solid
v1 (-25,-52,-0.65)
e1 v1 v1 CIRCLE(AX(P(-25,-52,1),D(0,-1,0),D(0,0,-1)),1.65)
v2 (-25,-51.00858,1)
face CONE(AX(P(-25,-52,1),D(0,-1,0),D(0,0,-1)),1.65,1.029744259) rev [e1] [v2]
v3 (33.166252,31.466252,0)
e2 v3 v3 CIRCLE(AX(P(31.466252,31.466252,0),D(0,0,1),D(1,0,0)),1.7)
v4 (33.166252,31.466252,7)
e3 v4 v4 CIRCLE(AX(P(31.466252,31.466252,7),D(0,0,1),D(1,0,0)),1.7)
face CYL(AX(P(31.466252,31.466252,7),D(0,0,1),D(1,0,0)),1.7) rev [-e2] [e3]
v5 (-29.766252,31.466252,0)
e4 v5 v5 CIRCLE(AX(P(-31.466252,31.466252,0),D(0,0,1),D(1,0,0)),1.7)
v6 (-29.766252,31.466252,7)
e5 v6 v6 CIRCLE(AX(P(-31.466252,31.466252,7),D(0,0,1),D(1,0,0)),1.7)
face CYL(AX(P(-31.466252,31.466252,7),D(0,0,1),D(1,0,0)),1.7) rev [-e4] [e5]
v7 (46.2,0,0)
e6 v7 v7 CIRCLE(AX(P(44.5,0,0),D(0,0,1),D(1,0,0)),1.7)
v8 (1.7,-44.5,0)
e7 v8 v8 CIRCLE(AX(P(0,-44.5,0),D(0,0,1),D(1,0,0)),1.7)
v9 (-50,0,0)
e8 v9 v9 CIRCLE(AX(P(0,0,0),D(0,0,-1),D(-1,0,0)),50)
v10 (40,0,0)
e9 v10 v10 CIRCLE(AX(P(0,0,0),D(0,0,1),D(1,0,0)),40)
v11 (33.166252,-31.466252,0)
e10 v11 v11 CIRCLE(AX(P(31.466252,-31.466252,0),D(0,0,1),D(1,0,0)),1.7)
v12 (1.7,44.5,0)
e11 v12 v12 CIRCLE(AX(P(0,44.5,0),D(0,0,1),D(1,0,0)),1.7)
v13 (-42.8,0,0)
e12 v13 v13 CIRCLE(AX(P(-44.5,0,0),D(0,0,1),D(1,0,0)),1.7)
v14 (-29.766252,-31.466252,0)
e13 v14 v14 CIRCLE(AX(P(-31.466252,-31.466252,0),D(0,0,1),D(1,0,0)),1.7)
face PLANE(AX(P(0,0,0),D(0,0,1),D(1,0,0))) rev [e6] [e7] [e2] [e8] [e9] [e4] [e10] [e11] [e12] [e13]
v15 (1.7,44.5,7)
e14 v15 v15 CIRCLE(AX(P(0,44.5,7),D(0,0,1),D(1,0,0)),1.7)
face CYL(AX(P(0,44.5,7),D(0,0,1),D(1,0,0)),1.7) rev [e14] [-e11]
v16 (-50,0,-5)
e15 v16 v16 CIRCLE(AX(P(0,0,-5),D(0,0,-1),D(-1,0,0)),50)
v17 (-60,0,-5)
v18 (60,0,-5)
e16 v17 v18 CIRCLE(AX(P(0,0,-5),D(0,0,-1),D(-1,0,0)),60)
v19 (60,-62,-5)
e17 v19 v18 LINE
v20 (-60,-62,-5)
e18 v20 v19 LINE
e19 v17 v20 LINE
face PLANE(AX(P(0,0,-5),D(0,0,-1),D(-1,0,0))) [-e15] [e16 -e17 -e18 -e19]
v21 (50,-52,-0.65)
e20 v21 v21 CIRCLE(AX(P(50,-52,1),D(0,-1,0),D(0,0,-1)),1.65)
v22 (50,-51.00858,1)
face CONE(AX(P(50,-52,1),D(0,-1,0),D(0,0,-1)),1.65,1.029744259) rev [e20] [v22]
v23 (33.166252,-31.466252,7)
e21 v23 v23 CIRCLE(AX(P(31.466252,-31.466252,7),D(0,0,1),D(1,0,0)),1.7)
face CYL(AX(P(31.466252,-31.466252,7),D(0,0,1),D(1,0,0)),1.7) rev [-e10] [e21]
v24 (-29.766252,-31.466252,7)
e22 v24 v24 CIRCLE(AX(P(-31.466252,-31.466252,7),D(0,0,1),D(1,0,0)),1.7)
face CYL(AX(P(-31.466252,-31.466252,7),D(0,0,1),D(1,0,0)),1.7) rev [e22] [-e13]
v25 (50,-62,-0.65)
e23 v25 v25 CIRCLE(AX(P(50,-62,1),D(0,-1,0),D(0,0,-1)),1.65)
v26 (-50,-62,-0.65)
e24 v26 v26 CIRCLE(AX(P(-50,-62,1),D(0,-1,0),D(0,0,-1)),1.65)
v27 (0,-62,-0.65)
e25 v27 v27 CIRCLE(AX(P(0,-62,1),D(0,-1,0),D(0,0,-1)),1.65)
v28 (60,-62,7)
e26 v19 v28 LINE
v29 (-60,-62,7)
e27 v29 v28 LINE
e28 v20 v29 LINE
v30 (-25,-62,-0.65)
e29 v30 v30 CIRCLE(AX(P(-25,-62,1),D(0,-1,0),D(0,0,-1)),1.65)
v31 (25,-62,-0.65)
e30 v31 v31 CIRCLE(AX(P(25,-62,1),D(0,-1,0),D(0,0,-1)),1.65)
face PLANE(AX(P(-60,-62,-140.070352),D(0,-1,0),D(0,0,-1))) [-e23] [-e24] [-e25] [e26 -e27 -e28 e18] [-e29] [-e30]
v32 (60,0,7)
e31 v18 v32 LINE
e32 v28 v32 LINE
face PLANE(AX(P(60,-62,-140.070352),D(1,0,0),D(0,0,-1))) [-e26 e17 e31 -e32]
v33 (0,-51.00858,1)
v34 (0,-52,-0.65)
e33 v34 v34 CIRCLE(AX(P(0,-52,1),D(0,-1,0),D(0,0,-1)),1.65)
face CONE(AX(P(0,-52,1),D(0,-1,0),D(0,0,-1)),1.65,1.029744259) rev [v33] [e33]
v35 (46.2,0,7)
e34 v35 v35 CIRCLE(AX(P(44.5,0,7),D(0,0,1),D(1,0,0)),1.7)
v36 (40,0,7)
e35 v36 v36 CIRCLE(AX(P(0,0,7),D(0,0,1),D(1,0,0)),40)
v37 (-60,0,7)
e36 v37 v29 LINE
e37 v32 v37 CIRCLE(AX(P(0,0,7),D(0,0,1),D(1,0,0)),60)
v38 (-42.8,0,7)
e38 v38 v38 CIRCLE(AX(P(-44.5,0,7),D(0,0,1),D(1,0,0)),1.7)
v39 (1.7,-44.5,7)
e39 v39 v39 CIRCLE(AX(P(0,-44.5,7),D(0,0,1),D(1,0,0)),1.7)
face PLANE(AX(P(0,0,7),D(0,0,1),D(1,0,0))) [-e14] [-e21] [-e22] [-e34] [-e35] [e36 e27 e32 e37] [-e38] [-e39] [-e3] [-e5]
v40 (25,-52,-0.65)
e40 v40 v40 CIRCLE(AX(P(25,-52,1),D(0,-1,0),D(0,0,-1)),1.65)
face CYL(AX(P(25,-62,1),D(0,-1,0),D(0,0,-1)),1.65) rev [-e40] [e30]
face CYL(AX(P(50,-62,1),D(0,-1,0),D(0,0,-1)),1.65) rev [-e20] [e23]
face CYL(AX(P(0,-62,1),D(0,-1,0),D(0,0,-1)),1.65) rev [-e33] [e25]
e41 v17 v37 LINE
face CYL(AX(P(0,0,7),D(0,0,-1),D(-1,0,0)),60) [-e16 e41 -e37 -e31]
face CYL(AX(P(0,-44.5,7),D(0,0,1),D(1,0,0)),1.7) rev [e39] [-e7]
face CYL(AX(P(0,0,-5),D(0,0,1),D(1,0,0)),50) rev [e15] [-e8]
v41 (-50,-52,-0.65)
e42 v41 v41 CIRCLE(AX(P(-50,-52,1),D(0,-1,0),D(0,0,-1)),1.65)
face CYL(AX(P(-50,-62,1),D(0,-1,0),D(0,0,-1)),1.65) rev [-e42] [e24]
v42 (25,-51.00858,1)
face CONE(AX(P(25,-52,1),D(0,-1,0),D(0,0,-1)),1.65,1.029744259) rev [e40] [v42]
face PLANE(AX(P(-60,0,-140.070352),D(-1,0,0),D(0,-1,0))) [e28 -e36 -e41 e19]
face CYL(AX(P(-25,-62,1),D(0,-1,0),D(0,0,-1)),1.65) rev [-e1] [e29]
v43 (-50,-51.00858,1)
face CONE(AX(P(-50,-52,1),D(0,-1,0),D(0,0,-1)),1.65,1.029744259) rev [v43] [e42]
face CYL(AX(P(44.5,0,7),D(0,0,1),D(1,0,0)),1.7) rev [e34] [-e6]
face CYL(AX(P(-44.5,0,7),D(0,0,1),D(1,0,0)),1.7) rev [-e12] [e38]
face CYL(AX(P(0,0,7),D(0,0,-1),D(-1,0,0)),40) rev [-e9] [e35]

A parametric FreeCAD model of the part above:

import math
import FreeCAD as App
import Part
import Sketcher

V = App.Vector

doc = App.newDocument("Part")
params = doc.addObject("Spreadsheet::Sheet", "Params")
for row, (alias, value) in enumerate([
    ("sketch1_diameter", "120 mm"),
    ("sketch1_diameter2", "80 mm"),
    ("pad1_length", "7 mm"),
    ("sketch2_diameter", "3.4 mm"),
    ("hole_diameter", "3.4 mm"),
    ("sketch3_diameter", "120 mm"),
    ("sketch3_diameter2", "100 mm"),
    ("pad2_length", "5 mm"),
    ("sketch4_radius", "60 mm"),
    ("sketch4_height", "62 mm"),
    ("pad3_length", "12 mm"),
    ("sketch5_diameter", "3.3 mm"),
    ("hole2_diameter", "3.3 mm"),
    ("hole2_depth", "10 mm"),
], start=1):
    params.set(f"A{row}", alias)
    params.set(f"B{row}", "=" + value)
    params.setAlias(f"B{row}", alias)

body = doc.addObject("PartDesign::Body", "Body")

# Sketch on XY plane
sketch1 = body.newObject("Sketcher::SketchObject", "Sketch")
sketch1.AttachmentSupport = (doc.getObject("XY_Plane"), [""])
sketch1.MapMode = "FlatFace"
sketch1.addGeometry([
    Part.Circle(V(0, 0, 0), V(0, 0, 1), 60),
    Part.Circle(V(0, 0, 0), V(0, 0, 1), 40),
], False)
sketch1.addConstraint([
    Sketcher.Constraint("Coincident", 0, 3, -1, 1),
    Sketcher.Constraint("Coincident", 1, 3, -1, 1),
    Sketcher.Constraint("Diameter", 0, 120.0),
    Sketcher.Constraint("Diameter", 1, 80.0),
])
sketch1.setExpression("Constraints[2]", "Params.sketch1_diameter")
sketch1.setExpression("Constraints[3]", "Params.sketch1_diameter2")
pad1 = body.newObject("PartDesign::Pad", "Pad")
pad1.Profile = sketch1
pad1.setExpression("Length", "Params.pad1_length")

# Sketch on XY plane
sketch2 = body.newObject("Sketcher::SketchObject", "Sketch001")
sketch2.AttachmentSupport = (doc.getObject("XY_Plane"), [""])
sketch2.MapMode = "FlatFace"
sketch2.AttachmentOffset = App.Placement(V(0, 0, 7), App.Rotation())
sketch2.addGeometry([
    Part.Circle(V(-31.5, 31.5, 0), V(0, 0, 1), 1.7),  # 0
    Part.Circle(V(0, 44.5, 0), V(0, 0, 1), 1.7),  # 1
    Part.Circle(V(31.5, 31.5, 0), V(0, 0, 1), 1.7),  # 2
    Part.Circle(V(44.5, 0, 0), V(0, 0, 1), 1.7),  # 3
    Part.Circle(V(31.5, -31.5, 0), V(0, 0, 1), 1.7),  # 4
    Part.Circle(V(0, -44.5, 0), V(0, 0, 1), 1.7),  # 5
    Part.Circle(V(-31.5, -31.5, 0), V(0, 0, 1), 1.7),  # 6
    Part.Circle(V(-44.5, 0, 0), V(0, 0, 1), 1.7),  # 7
], False)
sketch2.addConstraint([
    Sketcher.Constraint("Equal", 0, 1),
    Sketcher.Constraint("Equal", 1, 2),
    Sketcher.Constraint("Equal", 2, 3),
    Sketcher.Constraint("Equal", 3, 4),
    Sketcher.Constraint("Equal", 4, 5),
    Sketcher.Constraint("Equal", 5, 6),
    Sketcher.Constraint("Equal", 6, 7),
    Sketcher.Constraint("Symmetric", 0, 3, 4, 3, -1, 1),
    Sketcher.Constraint("Symmetric", 1, 3, 5, 3, -1, 1),
    Sketcher.Constraint("Symmetric", 2, 3, 6, 3, -1, 1),
    Sketcher.Constraint("Symmetric", 3, 3, 7, 3, -1, 1),
    Sketcher.Constraint("Symmetric", 0, 3, 2, 3, -2),
    Sketcher.Constraint("PointOnObject", 1, 3, -2),
    Sketcher.Constraint("PointOnObject", 3, 3, -1),
    Sketcher.Constraint("Diameter", 0, 3.4),
    Sketcher.Constraint("DistanceY", 5, 3, 1, 3, 89.0),
    Sketcher.Constraint("DistanceX", -1, 1, 3, 3, 44.5),
    Sketcher.Constraint("DistanceX", 0, 3, -1, 1, 31.466252),
    Sketcher.Constraint("DistanceY", -1, 1, 0, 3, 31.466252),
])
sketch2.setExpression("Constraints[14]", "Params.sketch2_diameter")
doc.recompute()
hole = body.newObject("PartDesign::Hole", "Hole")
hole.Profile = sketch2
hole.ThreadType = "None"
hole.setExpression("Diameter", "Params.hole_diameter")
hole.DepthType = "ThroughAll"

# Sketch on XY plane
sketch3 = body.newObject("Sketcher::SketchObject", "Sketch002")
sketch3.AttachmentSupport = (doc.getObject("XY_Plane"), [""])
sketch3.MapMode = "FlatFace"
sketch3.AttachmentOffset = App.Placement(V(0, 0, -5), App.Rotation())
sketch3.addGeometry([
    Part.Circle(V(0, 0, 0), V(0, 0, 1), 60),
    Part.Circle(V(0, 0, 0), V(0, 0, 1), 50),
], False)
sketch3.addConstraint([
    Sketcher.Constraint("Coincident", 0, 3, -1, 1),
    Sketcher.Constraint("Coincident", 1, 3, -1, 1),
    Sketcher.Constraint("Diameter", 0, 120.0),
    Sketcher.Constraint("Diameter", 1, 100.0),
])
sketch3.setExpression("Constraints[2]", "Params.sketch3_diameter")
sketch3.setExpression("Constraints[3]", "Params.sketch3_diameter2")
pad2 = body.newObject("PartDesign::Pad", "Pad001")
pad2.Profile = sketch3
pad2.setExpression("Length", "Params.pad2_length")

# Sketch on XY plane
sketch4 = body.newObject("Sketcher::SketchObject", "Sketch003")
sketch4.AttachmentSupport = (doc.getObject("XY_Plane"), [""])
sketch4.MapMode = "FlatFace"
sketch4.AttachmentOffset = App.Placement(V(0, 0, -5), App.Rotation())
sketch4.addGeometry([
    Part.LineSegment(V(-60, 0, 0), V(-60, -62, 0)),
    Part.LineSegment(V(-60, -62, 0), V(60, -62, 0)),
    Part.LineSegment(V(60, -62, 0), V(60, 0, 0)),
    Part.ArcOfCircle(Part.Circle(V(0, 0, 0), V(0, 0, 1), 60), math.radians(180), math.radians(360)),
], False)
sketch4.addConstraint([
    Sketcher.Constraint("Coincident", 0, 2, 1, 1),
    Sketcher.Constraint("Coincident", 1, 2, 2, 1),
    Sketcher.Constraint("Tangent", 2, 2, 3, 2),
    Sketcher.Constraint("Tangent", 3, 1, 0, 1),
    Sketcher.Constraint("Vertical", 0),
    Sketcher.Constraint("Horizontal", 1),
    Sketcher.Constraint("Vertical", 2),
    Sketcher.Constraint("Coincident", 3, 3, -1, 1),
    Sketcher.Constraint("Radius", 3, 60.0),
    Sketcher.Constraint("DistanceY", 0, 2, 0, 1, 62.0),
])
sketch4.setExpression("Constraints[8]", "Params.sketch4_radius")
sketch4.setExpression("Constraints[9]", "Params.sketch4_height")
pad3 = body.newObject("PartDesign::Pad", "Pad002")
pad3.Profile = sketch4
pad3.setExpression("Length", "Params.pad3_length")

# Sketch on XZ plane
sketch5 = body.newObject("Sketcher::SketchObject", "Sketch004")
sketch5.AttachmentSupport = (doc.getObject("XZ_Plane"), [""])
sketch5.MapMode = "FlatFace"
sketch5.AttachmentOffset = App.Placement(V(0, 0, 62), App.Rotation())
sketch5.addGeometry([
    Part.Circle(V(50, 1, 0), V(0, 0, 1), 1.6),  # 0
    Part.Circle(V(0, 1, 0), V(0, 0, 1), 1.6),  # 1
    Part.Circle(V(-25, 1, 0), V(0, 0, 1), 1.6),  # 2
    Part.Circle(V(-50, 1, 0), V(0, 0, 1), 1.6),  # 3
    Part.Circle(V(25, 1, 0), V(0, 0, 1), 1.6),  # 4
], False)
sketch5.addConstraint([
    Sketcher.Constraint("Equal", 0, 1),
    Sketcher.Constraint("Equal", 1, 2),
    Sketcher.Constraint("Equal", 2, 3),
    Sketcher.Constraint("Equal", 3, 4),
    Sketcher.Constraint("Symmetric", 0, 3, 3, 3, -2),
    Sketcher.Constraint("Symmetric", 2, 3, 4, 3, -2),
    Sketcher.Constraint("PointOnObject", 1, 3, -2),
    Sketcher.Constraint("Horizontal", 0, 3, 1, 3),
    Sketcher.Constraint("Horizontal", 1, 3, 2, 3),
    Sketcher.Constraint("Diameter", 0, 3.3),
    Sketcher.Constraint("DistanceX", -1, 1, 0, 3, 50.0),
    Sketcher.Constraint("DistanceY", -1, 1, 0, 3, 1.0),
    Sketcher.Constraint("DistanceX", 2, 3, -1, 1, 25.0),
])
sketch5.setExpression("Constraints[9]", "Params.sketch5_diameter")
doc.recompute()
hole2 = body.newObject("PartDesign::Hole", "Hole001")
hole2.Profile = sketch5
hole2.ThreadType = "None"
hole2.setExpression("Diameter", "Params.hole2_diameter")
hole2.DepthType = "Dimension"
hole2.setExpression("Depth", "Params.hole2_depth")
hole2.DrillPoint = "Angled"
hole2.DrillPointAngle = 118

doc.recompute()
